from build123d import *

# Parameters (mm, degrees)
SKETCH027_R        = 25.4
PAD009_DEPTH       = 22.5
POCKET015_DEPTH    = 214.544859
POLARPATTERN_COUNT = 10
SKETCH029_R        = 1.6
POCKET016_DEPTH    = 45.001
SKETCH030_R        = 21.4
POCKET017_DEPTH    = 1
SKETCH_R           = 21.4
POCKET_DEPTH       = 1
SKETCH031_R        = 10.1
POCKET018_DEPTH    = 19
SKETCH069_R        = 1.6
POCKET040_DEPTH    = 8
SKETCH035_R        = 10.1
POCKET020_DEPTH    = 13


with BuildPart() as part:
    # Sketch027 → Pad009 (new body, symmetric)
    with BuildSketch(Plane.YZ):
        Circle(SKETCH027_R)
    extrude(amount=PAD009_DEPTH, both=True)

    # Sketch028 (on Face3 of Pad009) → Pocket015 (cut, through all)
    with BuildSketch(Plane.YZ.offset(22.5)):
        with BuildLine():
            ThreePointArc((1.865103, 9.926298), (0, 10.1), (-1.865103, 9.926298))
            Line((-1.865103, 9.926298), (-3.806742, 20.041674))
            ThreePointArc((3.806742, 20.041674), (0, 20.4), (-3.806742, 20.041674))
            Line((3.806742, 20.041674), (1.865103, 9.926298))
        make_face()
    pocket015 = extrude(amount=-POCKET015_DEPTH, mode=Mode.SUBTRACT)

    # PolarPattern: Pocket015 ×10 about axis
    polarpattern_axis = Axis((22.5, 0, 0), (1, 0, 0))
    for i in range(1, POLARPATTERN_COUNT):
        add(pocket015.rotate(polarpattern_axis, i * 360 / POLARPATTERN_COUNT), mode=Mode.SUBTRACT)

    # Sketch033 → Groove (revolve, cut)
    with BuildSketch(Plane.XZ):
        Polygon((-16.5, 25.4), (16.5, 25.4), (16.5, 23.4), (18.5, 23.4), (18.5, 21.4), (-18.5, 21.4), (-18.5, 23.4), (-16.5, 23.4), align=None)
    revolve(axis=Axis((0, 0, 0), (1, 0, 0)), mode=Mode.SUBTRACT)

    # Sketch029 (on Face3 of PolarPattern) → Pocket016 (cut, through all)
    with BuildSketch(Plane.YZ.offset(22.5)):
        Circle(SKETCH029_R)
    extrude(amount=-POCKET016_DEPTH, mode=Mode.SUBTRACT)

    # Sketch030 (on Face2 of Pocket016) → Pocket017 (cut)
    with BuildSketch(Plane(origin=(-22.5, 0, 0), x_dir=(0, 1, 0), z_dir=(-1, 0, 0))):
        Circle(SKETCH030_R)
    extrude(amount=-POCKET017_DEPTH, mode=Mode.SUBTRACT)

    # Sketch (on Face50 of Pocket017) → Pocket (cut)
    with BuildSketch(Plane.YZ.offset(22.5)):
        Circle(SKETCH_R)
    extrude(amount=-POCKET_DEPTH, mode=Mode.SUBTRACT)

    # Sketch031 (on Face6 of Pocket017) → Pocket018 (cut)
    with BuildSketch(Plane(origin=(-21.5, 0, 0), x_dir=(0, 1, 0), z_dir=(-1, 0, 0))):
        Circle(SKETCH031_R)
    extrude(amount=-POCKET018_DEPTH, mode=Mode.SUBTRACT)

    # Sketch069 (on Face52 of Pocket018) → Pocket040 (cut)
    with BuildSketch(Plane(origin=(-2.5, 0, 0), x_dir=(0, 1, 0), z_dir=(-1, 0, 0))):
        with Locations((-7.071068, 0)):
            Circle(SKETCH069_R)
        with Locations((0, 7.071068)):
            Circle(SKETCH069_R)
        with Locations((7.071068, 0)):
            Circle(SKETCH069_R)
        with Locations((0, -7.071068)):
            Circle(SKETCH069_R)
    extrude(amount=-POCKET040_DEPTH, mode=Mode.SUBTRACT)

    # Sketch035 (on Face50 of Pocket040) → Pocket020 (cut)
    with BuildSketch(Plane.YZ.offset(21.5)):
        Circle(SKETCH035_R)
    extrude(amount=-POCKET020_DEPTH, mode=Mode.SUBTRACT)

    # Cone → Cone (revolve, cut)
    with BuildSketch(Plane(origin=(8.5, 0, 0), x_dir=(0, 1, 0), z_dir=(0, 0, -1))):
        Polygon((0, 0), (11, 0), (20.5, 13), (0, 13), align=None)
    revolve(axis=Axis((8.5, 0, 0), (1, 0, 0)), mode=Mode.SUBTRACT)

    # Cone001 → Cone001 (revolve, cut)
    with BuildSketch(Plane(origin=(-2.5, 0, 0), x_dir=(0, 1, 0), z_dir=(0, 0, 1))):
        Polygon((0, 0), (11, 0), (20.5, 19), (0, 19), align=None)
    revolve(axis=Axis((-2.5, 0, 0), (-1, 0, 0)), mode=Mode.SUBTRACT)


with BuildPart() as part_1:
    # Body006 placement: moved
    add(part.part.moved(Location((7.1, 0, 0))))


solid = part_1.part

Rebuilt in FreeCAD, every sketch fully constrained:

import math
import FreeCAD as App
import Part
import Sketcher
Q = App.Units.Quantity

doc = App.newDocument("Part")
params = doc.addObject("Spreadsheet::Sheet", "Params")
for row, (alias, value) in enumerate([
    ("sketch1_diameter", "50.8 mm"),
    ("pad1_length", "45 mm"),
    ("sketch3_width", "33 mm"),
    ("sketch3_width2", "2 mm"),
    ("groove_angle", "360 deg"),
    ("sketch4_diameter", "3.2 mm"),
    ("sketch5_diameter", "42.8 mm"),
    ("pocket3_length", "1 mm"),
    ("sketch6_diameter", "42.8 mm"),
    ("pocket4_length", "1 mm"),
    ("sketch7_diameter", "20.2 mm"),
    ("pocket5_length", "19 mm"),
    ("sketch8_diameter", "3.2 mm"),
    ("pocket6_length", "8 mm"),
    ("sketch9_diameter", "20.2 mm"),
    ("pocket7_length", "13 mm"),
    ("sketch10_width", "13 mm"),
    ("sketch10_height", "11 mm"),
    ("sketch10_height2", "20.5 mm"),
    ("groove2_angle", "360 deg"),
    ("sketch11_width", "19 mm"),
    ("sketch11_height", "11 mm"),
    ("sketch11_height2", "20.5 mm"),
    ("groove3_angle", "360 deg"),
], start=1):
    params.set(f"A{row}", alias)
    params.set(f"B{row}", "=" + value)
    params.setAlias(f"B{row}", alias)

body = doc.addObject("PartDesign::Body", "Body")

# Sketch on YZ plane
sketch1 = doc.addObject("Sketcher::SketchObject", "Sketch")
body.addObject(sketch1)
sketch1.AttachmentSupport = (doc.YZ_Plane, [""])
sketch1.MapMode = "FlatFace"
sketch1.addGeometry(Part.Circle(App.Vector(0, 0, 0), App.Vector(0, 0, 1), 25.4), False)
sketch1.addConstraint([
    Sketcher.Constraint("Coincident", 0, 3, -1, 1),
    Sketcher.Constraint("Diameter", 0, Q("50.8 mm")),
])
sketch1.setExpression("Constraints[1]", "Params.sketch1_diameter")
pad1 = doc.addObject("PartDesign::Pad", "Pad")
body.addObject(pad1)
pad1.Profile = sketch1
pad1.setExpression("Length", "Params.pad1_length")
pad1.Midplane = True

# Sketch on YZ plane
sketch2 = doc.addObject("Sketcher::SketchObject", "Sketch001")
body.addObject(sketch2)
sketch2.AttachmentSupport = (doc.YZ_Plane, [""])
sketch2.MapMode = "FlatFace"
sketch2.AttachmentOffset = App.Placement(App.Vector(0, 0, 22.5), App.Rotation())
sketch2.addGeometry([
    Part.ArcOfCircle(Part.Circle(App.Vector(0, -0.000003, 0), App.Vector(0, 0, 1), 10.100003), math.radians(79.35848), math.radians(100.64152)),
    Part.LineSegment(App.Vector(1.865103, 9.926298, 0), App.Vector(3.806742, 20.041674, 0)),
    Part.ArcOfCircle(Part.Circle(App.Vector(0, 0.000026, 0), App.Vector(0, 0, 1), 20.399974), math.radians(79.245264), math.radians(100.754736)),
    Part.LineSegment(App.Vector(-3.806742, 20.041674, 0), App.Vector(-1.865103, 9.926298, 0)),
], False)
sketch2.addConstraint([
    Sketcher.Constraint("Coincident", 0, 1, 1, 1),
    Sketcher.Constraint("Coincident", 1, 2, 2, 1),
    Sketcher.Constraint("Coincident", 2, 2, 3, 1),
    Sketcher.Constraint("Coincident", 3, 2, 0, 2),
    Sketcher.Constraint("Coincident", 0, 3, -1, 1),
    Sketcher.Constraint("Symmetric", 1, 2, 2, 2, -2),
    Sketcher.Constraint("Horizontal", 0, 1, 3, 2),
    Sketcher.Constraint("Radius", 0, Q("10.100003 mm")),
    Sketcher.Constraint("Radius", 2, Q("20.399974 mm")),
    Sketcher.Constraint("DistanceY", 0, 3, 0, 1, Q("9.926301 mm")),
    Sketcher.Constraint("Distance", 1, Q("10.300039 mm")),
    Sketcher.Constraint("DistanceX", -1, 1, 1, 2, Q("3.806742 mm")),
])
pocket1 = doc.addObject("PartDesign::Pocket", "Pocket")
body.addObject(pocket1)
pocket1.Profile = sketch2
pocket1.Type = "ThroughAll"
doc.recompute()

polarpattern = doc.addObject("PartDesign::PolarPattern", "PolarPattern")
body.addObject(polarpattern)
polarpattern.Originals = [pocket1]
polarpattern.Axis = (doc.X_Axis, [""])
polarpattern.Angle = 360
polarpattern.Occurrences = 10
body.Tip = polarpattern

# Sketch on XZ plane
sketch3 = doc.addObject("Sketcher::SketchObject", "Sketch002")
body.addObject(sketch3)
sketch3.AttachmentSupport = (doc.XZ_Plane, [""])
sketch3.MapMode = "FlatFace"
sketch3.addGeometry([
    Part.LineSegment(App.Vector(16.5, 25.4, 0), App.Vector(-16.5, 25.4, 0)),  # 0
    Part.LineSegment(App.Vector(-16.5, 25.4, 0), App.Vector(-16.5, 23.4, 0)),  # 1
    Part.LineSegment(App.Vector(-16.5, 23.4, 0), App.Vector(-18.5, 23.4, 0)),  # 2
    Part.LineSegment(App.Vector(-18.5, 23.4, 0), App.Vector(-18.5, 21.4, 0)),  # 3
    Part.LineSegment(App.Vector(-18.5, 21.4, 0), App.Vector(18.5, 21.4, 0)),  # 4
    Part.LineSegment(App.Vector(18.5, 21.4, 0), App.Vector(18.5, 23.4, 0)),  # 5
    Part.LineSegment(App.Vector(18.5, 23.4, 0), App.Vector(16.5, 23.4, 0)),  # 6
    Part.LineSegment(App.Vector(16.5, 23.4, 0), App.Vector(16.5, 25.4, 0)),  # 7
], False)
sketch3.addConstraint([
    Sketcher.Constraint("Coincident", 0, 2, 1, 1),
    Sketcher.Constraint("Coincident", 1, 2, 2, 1),
    Sketcher.Constraint("Coincident", 2, 2, 3, 1),
    Sketcher.Constraint("Coincident", 3, 2, 4, 1),
    Sketcher.Constraint("Coincident", 4, 2, 5, 1),
    Sketcher.Constraint("Coincident", 5, 2, 6, 1),
    Sketcher.Constraint("Coincident", 6, 2, 7, 1),
    Sketcher.Constraint("Coincident", 7, 2, 0, 1),
    Sketcher.Constraint("Horizontal", 0),
    Sketcher.Constraint("Vertical", 1),
    Sketcher.Constraint("Horizontal", 2),
    Sketcher.Constraint("Vertical", 3),
    Sketcher.Constraint("Horizontal", 4),
    Sketcher.Constraint("Vertical", 5),
    Sketcher.Constraint("Horizontal", 6),
    Sketcher.Constraint("Vertical", 7),
    Sketcher.Constraint("Symmetric", 2, 2, 5, 2, -2),
    Sketcher.Constraint("Equal", 2, 6),
    Sketcher.Constraint("Equal", 6, 1),
    Sketcher.Constraint("Equal", 1, 3),
    Sketcher.Constraint("DistanceX", 0, 2, 0, 1, Q("33 mm")),
    Sketcher.Constraint("DistanceX", 2, 2, 2, 1, Q("2 mm")),
    Sketcher.Constraint("DistanceY", -1, 1, 0, 2, Q("25.4 mm")),
])
sketch3.setExpression("Constraints[20]", "Params.sketch3_width")
sketch3.setExpression("Constraints[21]", "Params.sketch3_width2")
groove = doc.addObject("PartDesign::Groove", "Groove")
body.addObject(groove)
groove.Profile = sketch3
groove.ReferenceAxis = (sketch3, ["H_Axis"])
groove.setExpression("Angle", "Params.groove_angle")

# Sketch on YZ plane
sketch4 = doc.addObject("Sketcher::SketchObject", "Sketch003")
body.addObject(sketch4)
sketch4.AttachmentSupport = (doc.YZ_Plane, [""])
sketch4.MapMode = "FlatFace"
sketch4.AttachmentOffset = App.Placement(App.Vector(0, 0, 22.5), App.Rotation())
sketch4.addGeometry(Part.Circle(App.Vector(0, 0, 0), App.Vector(0, 0, 1), 1.6), False)
sketch4.addConstraint([
    Sketcher.Constraint("Coincident", 0, 3, -1, 1),
    Sketcher.Constraint("Diameter", 0, Q("3.2 mm")),
])
sketch4.setExpression("Constraints[1]", "Params.sketch4_diameter")
pocket2 = doc.addObject("PartDesign::Pocket", "Pocket001")
body.addObject(pocket2)
pocket2.Profile = sketch4
pocket2.Type = "ThroughAll"

# Sketch on YZ plane
sketch5 = doc.addObject("Sketcher::SketchObject", "Sketch004")
body.addObject(sketch5)
sketch5.AttachmentSupport = (doc.YZ_Plane, [""])
sketch5.MapMode = "FlatFace"
sketch5.AttachmentOffset = App.Placement(App.Vector(0, 0, -22.5), App.Rotation())
sketch5.addGeometry(Part.Circle(App.Vector(0, 0, 0), App.Vector(0, 0, 1), 21.4), False)
sketch5.addConstraint([
    Sketcher.Constraint("Coincident", 0, 3, -1, 1),
    Sketcher.Constraint("Diameter", 0, Q("42.8 mm")),
])
sketch5.setExpression("Constraints[1]", "Params.sketch5_diameter")
pocket3 = doc.addObject("PartDesign::Pocket", "Pocket002")
body.addObject(pocket3)
pocket3.Profile = sketch5
pocket3.setExpression("Length", "Params.pocket3_length")
pocket3.Reversed = True

# Sketch on YZ plane
sketch6 = doc.addObject("Sketcher::SketchObject", "Sketch005")
body.addObject(sketch6)
sketch6.AttachmentSupport = (doc.YZ_Plane, [""])
sketch6.MapMode = "FlatFace"
sketch6.AttachmentOffset = App.Placement(App.Vector(0, 0, 22.5), App.Rotation())
sketch6.addGeometry(Part.Circle(App.Vector(0, 0, 0), App.Vector(0, 0, 1), 21.4), False)
sketch6.addConstraint([
    Sketcher.Constraint("Coincident", 0, 3, -1, 1),
    Sketcher.Constraint("Diameter", 0, Q("42.8 mm")),
])
sketch6.setExpression("Constraints[1]", "Params.sketch6_diameter")
pocket4 = doc.addObject("PartDesign::Pocket", "Pocket003")
body.addObject(pocket4)
pocket4.Profile = sketch6
pocket4.setExpression("Length", "Params.pocket4_length")

# Sketch on YZ plane
sketch7 = doc.addObject("Sketcher::SketchObject", "Sketch006")
body.addObject(sketch7)
sketch7.AttachmentSupport = (doc.YZ_Plane, [""])
sketch7.MapMode = "FlatFace"
sketch7.AttachmentOffset = App.Placement(App.Vector(0, 0, -21.5), App.Rotation())
sketch7.addGeometry(Part.Circle(App.Vector(0, 0, 0), App.Vector(0, 0, 1), 10.1), False)
sketch7.addConstraint([
    Sketcher.Constraint("Coincident", 0, 3, -1, 1),
    Sketcher.Constraint("Diameter", 0, Q("20.2 mm")),
])
sketch7.setExpression("Constraints[1]", "Params.sketch7_diameter")
pocket5 = doc.addObject("PartDesign::Pocket", "Pocket004")
body.addObject(pocket5)
pocket5.Profile = sketch7
pocket5.setExpression("Length", "Params.pocket5_length")
pocket5.Reversed = True

# Sketch on YZ plane
sketch8 = doc.addObject("Sketcher::SketchObject", "Sketch007")
body.addObject(sketch8)
sketch8.AttachmentSupport = (doc.YZ_Plane, [""])
sketch8.MapMode = "FlatFace"
sketch8.AttachmentOffset = App.Placement(App.Vector(0, 0, -2.5), App.Rotation())
sketch8.addGeometry([
    Part.Circle(App.Vector(-7.071068, 0, 0), App.Vector(0, 0, 1), 1.6),
    Part.Circle(App.Vector(0, -7.071068, 0), App.Vector(0, 0, 1), 1.6),
    Part.Circle(App.Vector(7.071068, 0, 0), App.Vector(0, 0, 1), 1.6),
    Part.Circle(App.Vector(0, 7.071068, 0), App.Vector(0, 0, 1), 1.6),
], False)
sketch8.addConstraint([
    Sketcher.Constraint("Equal", 0, 1),
    Sketcher.Constraint("Equal", 1, 2),
    Sketcher.Constraint("Equal", 2, 3),
    Sketcher.Constraint("Symmetric", 0, 3, 2, 3, -1, 1),
    Sketcher.Constraint("Symmetric", 1, 3, 3, 3, -1, 1),
    Sketcher.Constraint("PointOnObject", 0, 3, -1),
    Sketcher.Constraint("PointOnObject", 1, 3, -2),
    Sketcher.Constraint("Diameter", 0, Q("3.2 mm")),
    Sketcher.Constraint("DistanceX", 0, 3, -1, 1, Q("7.071068 mm")),
    Sketcher.Constraint("DistanceY", 1, 3, -1, 1, Q("7.071068 mm")),
])
sketch8.setExpression("Constraints[7]", "Params.sketch8_diameter")
pocket6 = doc.addObject("PartDesign::Pocket", "Pocket005")
body.addObject(pocket6)
pocket6.Profile = sketch8
pocket6.setExpression("Length", "Params.pocket6_length")
pocket6.Reversed = True

# Sketch on YZ plane
sketch9 = doc.addObject("Sketcher::SketchObject", "Sketch008")
body.addObject(sketch9)
sketch9.AttachmentSupport = (doc.YZ_Plane, [""])
sketch9.MapMode = "FlatFace"
sketch9.AttachmentOffset = App.Placement(App.Vector(0, 0, 21.5), App.Rotation())
sketch9.addGeometry(Part.Circle(App.Vector(0, 0, 0), App.Vector(0, 0, 1), 10.1), False)
sketch9.addConstraint([
    Sketcher.Constraint("Coincident", 0, 3, -1, 1),
    Sketcher.Constraint("Diameter", 0, Q("20.2 mm")),
])
sketch9.setExpression("Constraints[1]", "Params.sketch9_diameter")
pocket7 = doc.addObject("PartDesign::Pocket", "Pocket006")
body.addObject(pocket7)
pocket7.Profile = sketch9
pocket7.setExpression("Length", "Params.pocket7_length")

# Sketch on XY plane
sketch10 = doc.addObject("Sketcher::SketchObject", "Sketch009")
body.addObject(sketch10)
sketch10.AttachmentSupport = (doc.XY_Plane, [""])
sketch10.MapMode = "FlatFace"
sketch10.addGeometry([
    Part.LineSegment(App.Vector(8.5, 0, 0), App.Vector(8.5, 11, 0)),
    Part.LineSegment(App.Vector(8.5, 11, 0), App.Vector(21.5, 20.5, 0)),
    Part.LineSegment(App.Vector(21.5, 20.5, 0), App.Vector(21.5, 0, 0)),
    Part.LineSegment(App.Vector(21.5, 0, 0), App.Vector(8.5, 0, 0)),
], False)
sketch10.addConstraint([
    Sketcher.Constraint("Coincident", 0, 2, 1, 1),
    Sketcher.Constraint("Coincident", 1, 2, 2, 1),
    Sketcher.Constraint("Coincident", 2, 2, 3, 1),
    Sketcher.Constraint("Coincident", 3, 2, 0, 1),
    Sketcher.Constraint("Vertical", 0),
    Sketcher.Constraint("Vertical", 2),
    Sketcher.Constraint("Horizontal", 3),
    Sketcher.Constraint("PointOnObject", 2, 2, -1),
    Sketcher.Constraint("DistanceX", 3, 2, 3, 1, Q("13 mm")),
    Sketcher.Constraint("DistanceY", 0, 1, 0, 2, Q("11 mm")),
    Sketcher.Constraint("DistanceY", 2, 2, 2, 1, Q("20.5 mm")),
    Sketcher.Constraint("DistanceX", -1, 1, 0, 2, Q("8.5 mm")),
])
sketch10.setExpression("Constraints[8]", "Params.sketch10_width")
sketch10.setExpression("Constraints[9]", "Params.sketch10_height")
sketch10.setExpression("Constraints[10]", "Params.sketch10_height2")
groove2 = doc.addObject("PartDesign::Groove", "Groove001")
body.addObject(groove2)
groove2.Profile = sketch10
groove2.ReferenceAxis = (sketch10, ["H_Axis"])
groove2.setExpression("Angle", "Params.groove2_angle")

# Sketch on XY plane
sketch11 = doc.addObject("Sketcher::SketchObject", "Sketch010")
body.addObject(sketch11)
sketch11.AttachmentSupport = (doc.XY_Plane, [""])
sketch11.MapMode = "FlatFace"
sketch11.addGeometry([
    Part.LineSegment(App.Vector(-2.5, 0, 0), App.Vector(-2.5, 11, 0)),
    Part.LineSegment(App.Vector(-2.5, 11, 0), App.Vector(-21.5, 20.5, 0)),
    Part.LineSegment(App.Vector(-21.5, 20.5, 0), App.Vector(-21.5, 0, 0)),
    Part.LineSegment(App.Vector(-21.5, 0, 0), App.Vector(-2.5, 0, 0)),
], False)
sketch11.addConstraint([
    Sketcher.Constraint("Coincident", 0, 2, 1, 1),
    Sketcher.Constraint("Coincident", 1, 2, 2, 1),
    Sketcher.Constraint("Coincident", 2, 2, 3, 1),
    Sketcher.Constraint("Coincident", 3, 2, 0, 1),
    Sketcher.Constraint("Vertical", 0),
    Sketcher.Constraint("Vertical", 2),
    Sketcher.Constraint("Horizontal", 3),
    Sketcher.Constraint("PointOnObject", 2, 2, -1),
    Sketcher.Constraint("DistanceX", 3, 1, 3, 2, Q("19 mm")),
    Sketcher.Constraint("DistanceY", 0, 1, 0, 2, Q("11 mm")),
    Sketcher.Constraint("DistanceY", 2, 2, 2, 1, Q("20.5 mm")),
    Sketcher.Constraint("DistanceX", 0, 2, -1, 1, Q("2.5 mm")),
])
sketch11.setExpression("Constraints[8]", "Params.sketch11_width")
sketch11.setExpression("Constraints[9]", "Params.sketch11_height")
sketch11.setExpression("Constraints[10]", "Params.sketch11_height2")
groove3 = doc.addObject("PartDesign::Groove", "Groove002")
body.addObject(groove3)
groove3.Profile = sketch11
groove3.ReferenceAxis = (sketch11, ["H_Axis"])
groove3.setExpression("Angle", "Params.groove3_angle")
body2 = doc.addObject("PartDesign::Body", "Body001")
doc.recompute()

body.Placement = App.Placement(App.Vector(7.1, 0, 0), App.Rotation(App.Vector(0, 0, 1), 0))
boolean = doc.addObject("PartDesign::Boolean", "Boolean")
body2.addObject(boolean)
boolean.Type = "Fuse"
boolean.addObjects([body])

doc.recompute()
